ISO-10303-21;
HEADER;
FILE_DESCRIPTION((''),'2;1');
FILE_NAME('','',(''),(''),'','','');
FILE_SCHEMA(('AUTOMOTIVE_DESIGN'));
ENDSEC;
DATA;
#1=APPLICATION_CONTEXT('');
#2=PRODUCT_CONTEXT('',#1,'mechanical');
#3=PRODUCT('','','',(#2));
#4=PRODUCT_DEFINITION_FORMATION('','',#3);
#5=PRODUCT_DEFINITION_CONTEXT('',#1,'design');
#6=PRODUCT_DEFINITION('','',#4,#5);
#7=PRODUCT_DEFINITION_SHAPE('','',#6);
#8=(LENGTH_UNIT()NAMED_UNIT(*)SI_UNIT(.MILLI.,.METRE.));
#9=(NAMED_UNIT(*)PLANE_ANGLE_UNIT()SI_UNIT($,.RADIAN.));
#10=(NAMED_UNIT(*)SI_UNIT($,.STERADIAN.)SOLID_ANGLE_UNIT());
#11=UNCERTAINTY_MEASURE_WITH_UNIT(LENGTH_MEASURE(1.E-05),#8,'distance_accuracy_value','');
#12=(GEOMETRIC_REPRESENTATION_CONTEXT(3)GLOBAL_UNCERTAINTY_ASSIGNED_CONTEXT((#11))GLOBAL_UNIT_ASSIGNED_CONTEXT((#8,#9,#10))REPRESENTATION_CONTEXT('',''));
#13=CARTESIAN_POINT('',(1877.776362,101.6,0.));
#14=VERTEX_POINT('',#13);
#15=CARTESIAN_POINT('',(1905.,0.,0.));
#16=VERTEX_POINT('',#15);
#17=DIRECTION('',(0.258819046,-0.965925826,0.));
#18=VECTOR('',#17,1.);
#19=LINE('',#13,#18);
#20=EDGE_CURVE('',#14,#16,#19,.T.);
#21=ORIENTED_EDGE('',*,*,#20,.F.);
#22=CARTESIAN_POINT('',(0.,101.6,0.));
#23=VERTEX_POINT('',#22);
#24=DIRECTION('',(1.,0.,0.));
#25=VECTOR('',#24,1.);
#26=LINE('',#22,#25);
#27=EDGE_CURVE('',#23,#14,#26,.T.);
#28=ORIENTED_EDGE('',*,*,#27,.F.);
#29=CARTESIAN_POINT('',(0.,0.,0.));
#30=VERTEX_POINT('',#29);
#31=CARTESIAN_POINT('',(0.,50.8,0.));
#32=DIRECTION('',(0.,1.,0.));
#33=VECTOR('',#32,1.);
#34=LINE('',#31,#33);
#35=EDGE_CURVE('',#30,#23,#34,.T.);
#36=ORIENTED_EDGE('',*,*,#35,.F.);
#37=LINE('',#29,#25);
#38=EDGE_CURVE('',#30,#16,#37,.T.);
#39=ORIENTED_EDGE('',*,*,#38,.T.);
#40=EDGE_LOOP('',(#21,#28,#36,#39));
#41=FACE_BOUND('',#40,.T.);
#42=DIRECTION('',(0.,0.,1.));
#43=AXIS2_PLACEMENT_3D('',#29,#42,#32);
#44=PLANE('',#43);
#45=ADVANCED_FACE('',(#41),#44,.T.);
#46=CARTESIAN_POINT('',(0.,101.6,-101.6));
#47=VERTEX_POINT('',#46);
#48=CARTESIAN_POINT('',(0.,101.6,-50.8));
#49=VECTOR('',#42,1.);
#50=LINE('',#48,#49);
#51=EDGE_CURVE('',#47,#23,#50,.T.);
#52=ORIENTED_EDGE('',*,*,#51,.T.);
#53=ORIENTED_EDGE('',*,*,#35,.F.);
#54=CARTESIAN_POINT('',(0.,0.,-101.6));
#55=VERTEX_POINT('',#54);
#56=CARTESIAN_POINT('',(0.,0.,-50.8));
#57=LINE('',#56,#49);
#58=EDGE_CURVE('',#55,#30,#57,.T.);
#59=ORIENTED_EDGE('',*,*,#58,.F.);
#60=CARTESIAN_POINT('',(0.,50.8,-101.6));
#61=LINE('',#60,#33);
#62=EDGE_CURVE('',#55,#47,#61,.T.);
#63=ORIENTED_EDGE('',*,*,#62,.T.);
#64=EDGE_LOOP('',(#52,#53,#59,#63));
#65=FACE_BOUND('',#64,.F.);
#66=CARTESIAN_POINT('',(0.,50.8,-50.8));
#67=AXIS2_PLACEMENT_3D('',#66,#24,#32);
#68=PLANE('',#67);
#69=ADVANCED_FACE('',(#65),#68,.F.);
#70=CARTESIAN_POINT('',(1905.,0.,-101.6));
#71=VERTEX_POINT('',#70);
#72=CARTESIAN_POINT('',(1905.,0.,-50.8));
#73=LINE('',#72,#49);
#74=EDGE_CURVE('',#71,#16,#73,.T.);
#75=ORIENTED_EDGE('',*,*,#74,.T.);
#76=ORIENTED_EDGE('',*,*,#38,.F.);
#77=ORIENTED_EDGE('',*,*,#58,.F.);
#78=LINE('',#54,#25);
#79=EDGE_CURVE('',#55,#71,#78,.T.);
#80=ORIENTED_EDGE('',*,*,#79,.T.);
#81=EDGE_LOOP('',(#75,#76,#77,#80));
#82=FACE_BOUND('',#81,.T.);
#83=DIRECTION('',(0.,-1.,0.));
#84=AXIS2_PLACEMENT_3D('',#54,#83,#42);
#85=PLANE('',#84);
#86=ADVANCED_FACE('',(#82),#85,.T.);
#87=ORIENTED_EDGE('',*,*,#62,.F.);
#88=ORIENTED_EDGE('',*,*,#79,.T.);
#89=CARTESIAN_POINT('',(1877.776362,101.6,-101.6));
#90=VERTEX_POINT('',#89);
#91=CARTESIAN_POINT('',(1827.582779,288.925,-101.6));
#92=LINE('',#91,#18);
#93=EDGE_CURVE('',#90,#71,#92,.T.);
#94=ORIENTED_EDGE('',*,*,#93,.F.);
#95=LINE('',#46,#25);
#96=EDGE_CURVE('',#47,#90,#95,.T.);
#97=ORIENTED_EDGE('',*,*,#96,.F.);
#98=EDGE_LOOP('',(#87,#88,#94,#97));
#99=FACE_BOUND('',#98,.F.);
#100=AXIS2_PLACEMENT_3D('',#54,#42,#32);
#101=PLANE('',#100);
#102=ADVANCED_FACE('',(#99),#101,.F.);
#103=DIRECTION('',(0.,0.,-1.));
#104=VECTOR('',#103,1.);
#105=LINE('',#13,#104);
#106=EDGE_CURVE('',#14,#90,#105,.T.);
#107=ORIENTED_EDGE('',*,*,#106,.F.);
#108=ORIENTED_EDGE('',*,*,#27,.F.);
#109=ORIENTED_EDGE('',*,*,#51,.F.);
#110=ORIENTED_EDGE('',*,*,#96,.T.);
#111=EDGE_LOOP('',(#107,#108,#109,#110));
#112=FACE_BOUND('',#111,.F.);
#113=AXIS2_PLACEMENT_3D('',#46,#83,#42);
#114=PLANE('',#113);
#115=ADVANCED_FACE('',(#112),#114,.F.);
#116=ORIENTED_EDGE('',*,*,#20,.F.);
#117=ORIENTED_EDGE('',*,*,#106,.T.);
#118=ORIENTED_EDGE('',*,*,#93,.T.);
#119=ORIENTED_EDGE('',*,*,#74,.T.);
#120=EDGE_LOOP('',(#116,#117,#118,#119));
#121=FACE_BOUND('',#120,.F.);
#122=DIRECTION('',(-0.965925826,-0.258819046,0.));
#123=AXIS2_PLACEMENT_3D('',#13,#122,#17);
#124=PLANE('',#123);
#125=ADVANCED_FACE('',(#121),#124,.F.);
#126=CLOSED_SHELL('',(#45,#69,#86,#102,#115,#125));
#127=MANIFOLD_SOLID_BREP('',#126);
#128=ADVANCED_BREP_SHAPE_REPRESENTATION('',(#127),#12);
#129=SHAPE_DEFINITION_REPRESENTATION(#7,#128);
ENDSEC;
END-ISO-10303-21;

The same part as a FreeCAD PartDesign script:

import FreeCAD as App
import Part
import Sketcher
Q = App.Units.Quantity

doc = App.newDocument("Part")
body = doc.addObject("PartDesign::Body", "Body")

sketch1 = body.newObject("Sketcher::SketchObject", "Sketch")
sketch1.AttachmentSupport = (doc.getObject("YZ_Plane"), [""])
sketch1.MapMode = "FlatFace"
sketch1.addGeometry(Part.LineSegment(App.Vector(0, 0, 0), App.Vector(0, -101.6, 0)), False)
sketch1.addGeometry(Part.LineSegment(App.Vector(0, -101.6, 0), App.Vector(101.6, -101.6, 0)), False)
sketch1.addGeometry(Part.LineSegment(App.Vector(101.6, -101.6, 0), App.Vector(101.6, 0, 0)), False)
sketch1.addGeometry(Part.LineSegment(App.Vector(101.6, 0, 0), App.Vector(0, 0, 0)), False)
sketch1.addConstraint(Sketcher.Constraint("Coincident", 0, 2, 1, 1))
sketch1.addConstraint(Sketcher.Constraint("Coincident", 1, 2, 2, 1))
sketch1.addConstraint(Sketcher.Constraint("Coincident", 2, 2, 3, 1))
sketch1.addConstraint(Sketcher.Constraint("Coincident", 3, 2, 0, 1))
sketch1.addConstraint(Sketcher.Constraint("Vertical", 0))
sketch1.addConstraint(Sketcher.Constraint("Horizontal", 1))
sketch1.addConstraint(Sketcher.Constraint("Vertical", 2))
sketch1.addConstraint(Sketcher.Constraint("Horizontal", 3))
sketch1.addConstraint(Sketcher.Constraint("Coincident", 3, 2, -1, 1))
sketch1.addConstraint(Sketcher.Constraint("Equal", 3, 0))
sketch1.addConstraint(Sketcher.Constraint("DistanceX", 1, 1, 1, 2, Q("4 in")))
pad1 = body.newObject("PartDesign::Pad", "Pad")
pad1.Profile = sketch1
pad1.Length = Q("75 in")

sketch2 = body.newObject("Sketcher::SketchObject", "Sketch001")
sketch2.AttachmentSupport = (doc.getObject("XY_Plane"), [""])
sketch2.MapMode = "FlatFace"
sketch2.addGeometry(Part.LineSegment(App.Vector(1905, 101.6, 0), App.Vector(1877.776362, 101.6, 0)), False)
sketch2.addGeometry(Part.LineSegment(App.Vector(1877.776362, 101.6, 0), App.Vector(1905, 0, 0)), False)
sketch2.addGeometry(Part.LineSegment(App.Vector(1905, 0, 0), App.Vector(1905, 101.6, 0)), False)
sketch2.addConstraint(Sketcher.Constraint("Coincident", 0, 2, 1, 1))
sketch2.addConstraint(Sketcher.Constraint("Coincident", 1, 2, 2, 1))
sketch2.addConstraint(Sketcher.Constraint("Coincident", 2, 2, 0, 1))
sketch2.addConstraint(Sketcher.Constraint("Horizontal", 0))
sketch2.addConstraint(Sketcher.Constraint("Vertical", 2))
sketch2.addConstraint(Sketcher.Constraint("PointOnObject", 1, 2, -1))
sketch2.addConstraint(Sketcher.Constraint("DistanceY", 2, 1, 2, 2, Q("4 in")))
sketch2.addConstraint(Sketcher.Constraint("DistanceX", -1, 1, 1, 2, Q("75 in")))
sketch2.addConstraint(Sketcher.Constraint("Angle", 1, Q("-75 deg")))
pocket1 = body.newObject("PartDesign::Pocket", "Pocket")
pocket1.Profile = sketch2
pocket1.Length = Q("5 in")

doc.recompute()
